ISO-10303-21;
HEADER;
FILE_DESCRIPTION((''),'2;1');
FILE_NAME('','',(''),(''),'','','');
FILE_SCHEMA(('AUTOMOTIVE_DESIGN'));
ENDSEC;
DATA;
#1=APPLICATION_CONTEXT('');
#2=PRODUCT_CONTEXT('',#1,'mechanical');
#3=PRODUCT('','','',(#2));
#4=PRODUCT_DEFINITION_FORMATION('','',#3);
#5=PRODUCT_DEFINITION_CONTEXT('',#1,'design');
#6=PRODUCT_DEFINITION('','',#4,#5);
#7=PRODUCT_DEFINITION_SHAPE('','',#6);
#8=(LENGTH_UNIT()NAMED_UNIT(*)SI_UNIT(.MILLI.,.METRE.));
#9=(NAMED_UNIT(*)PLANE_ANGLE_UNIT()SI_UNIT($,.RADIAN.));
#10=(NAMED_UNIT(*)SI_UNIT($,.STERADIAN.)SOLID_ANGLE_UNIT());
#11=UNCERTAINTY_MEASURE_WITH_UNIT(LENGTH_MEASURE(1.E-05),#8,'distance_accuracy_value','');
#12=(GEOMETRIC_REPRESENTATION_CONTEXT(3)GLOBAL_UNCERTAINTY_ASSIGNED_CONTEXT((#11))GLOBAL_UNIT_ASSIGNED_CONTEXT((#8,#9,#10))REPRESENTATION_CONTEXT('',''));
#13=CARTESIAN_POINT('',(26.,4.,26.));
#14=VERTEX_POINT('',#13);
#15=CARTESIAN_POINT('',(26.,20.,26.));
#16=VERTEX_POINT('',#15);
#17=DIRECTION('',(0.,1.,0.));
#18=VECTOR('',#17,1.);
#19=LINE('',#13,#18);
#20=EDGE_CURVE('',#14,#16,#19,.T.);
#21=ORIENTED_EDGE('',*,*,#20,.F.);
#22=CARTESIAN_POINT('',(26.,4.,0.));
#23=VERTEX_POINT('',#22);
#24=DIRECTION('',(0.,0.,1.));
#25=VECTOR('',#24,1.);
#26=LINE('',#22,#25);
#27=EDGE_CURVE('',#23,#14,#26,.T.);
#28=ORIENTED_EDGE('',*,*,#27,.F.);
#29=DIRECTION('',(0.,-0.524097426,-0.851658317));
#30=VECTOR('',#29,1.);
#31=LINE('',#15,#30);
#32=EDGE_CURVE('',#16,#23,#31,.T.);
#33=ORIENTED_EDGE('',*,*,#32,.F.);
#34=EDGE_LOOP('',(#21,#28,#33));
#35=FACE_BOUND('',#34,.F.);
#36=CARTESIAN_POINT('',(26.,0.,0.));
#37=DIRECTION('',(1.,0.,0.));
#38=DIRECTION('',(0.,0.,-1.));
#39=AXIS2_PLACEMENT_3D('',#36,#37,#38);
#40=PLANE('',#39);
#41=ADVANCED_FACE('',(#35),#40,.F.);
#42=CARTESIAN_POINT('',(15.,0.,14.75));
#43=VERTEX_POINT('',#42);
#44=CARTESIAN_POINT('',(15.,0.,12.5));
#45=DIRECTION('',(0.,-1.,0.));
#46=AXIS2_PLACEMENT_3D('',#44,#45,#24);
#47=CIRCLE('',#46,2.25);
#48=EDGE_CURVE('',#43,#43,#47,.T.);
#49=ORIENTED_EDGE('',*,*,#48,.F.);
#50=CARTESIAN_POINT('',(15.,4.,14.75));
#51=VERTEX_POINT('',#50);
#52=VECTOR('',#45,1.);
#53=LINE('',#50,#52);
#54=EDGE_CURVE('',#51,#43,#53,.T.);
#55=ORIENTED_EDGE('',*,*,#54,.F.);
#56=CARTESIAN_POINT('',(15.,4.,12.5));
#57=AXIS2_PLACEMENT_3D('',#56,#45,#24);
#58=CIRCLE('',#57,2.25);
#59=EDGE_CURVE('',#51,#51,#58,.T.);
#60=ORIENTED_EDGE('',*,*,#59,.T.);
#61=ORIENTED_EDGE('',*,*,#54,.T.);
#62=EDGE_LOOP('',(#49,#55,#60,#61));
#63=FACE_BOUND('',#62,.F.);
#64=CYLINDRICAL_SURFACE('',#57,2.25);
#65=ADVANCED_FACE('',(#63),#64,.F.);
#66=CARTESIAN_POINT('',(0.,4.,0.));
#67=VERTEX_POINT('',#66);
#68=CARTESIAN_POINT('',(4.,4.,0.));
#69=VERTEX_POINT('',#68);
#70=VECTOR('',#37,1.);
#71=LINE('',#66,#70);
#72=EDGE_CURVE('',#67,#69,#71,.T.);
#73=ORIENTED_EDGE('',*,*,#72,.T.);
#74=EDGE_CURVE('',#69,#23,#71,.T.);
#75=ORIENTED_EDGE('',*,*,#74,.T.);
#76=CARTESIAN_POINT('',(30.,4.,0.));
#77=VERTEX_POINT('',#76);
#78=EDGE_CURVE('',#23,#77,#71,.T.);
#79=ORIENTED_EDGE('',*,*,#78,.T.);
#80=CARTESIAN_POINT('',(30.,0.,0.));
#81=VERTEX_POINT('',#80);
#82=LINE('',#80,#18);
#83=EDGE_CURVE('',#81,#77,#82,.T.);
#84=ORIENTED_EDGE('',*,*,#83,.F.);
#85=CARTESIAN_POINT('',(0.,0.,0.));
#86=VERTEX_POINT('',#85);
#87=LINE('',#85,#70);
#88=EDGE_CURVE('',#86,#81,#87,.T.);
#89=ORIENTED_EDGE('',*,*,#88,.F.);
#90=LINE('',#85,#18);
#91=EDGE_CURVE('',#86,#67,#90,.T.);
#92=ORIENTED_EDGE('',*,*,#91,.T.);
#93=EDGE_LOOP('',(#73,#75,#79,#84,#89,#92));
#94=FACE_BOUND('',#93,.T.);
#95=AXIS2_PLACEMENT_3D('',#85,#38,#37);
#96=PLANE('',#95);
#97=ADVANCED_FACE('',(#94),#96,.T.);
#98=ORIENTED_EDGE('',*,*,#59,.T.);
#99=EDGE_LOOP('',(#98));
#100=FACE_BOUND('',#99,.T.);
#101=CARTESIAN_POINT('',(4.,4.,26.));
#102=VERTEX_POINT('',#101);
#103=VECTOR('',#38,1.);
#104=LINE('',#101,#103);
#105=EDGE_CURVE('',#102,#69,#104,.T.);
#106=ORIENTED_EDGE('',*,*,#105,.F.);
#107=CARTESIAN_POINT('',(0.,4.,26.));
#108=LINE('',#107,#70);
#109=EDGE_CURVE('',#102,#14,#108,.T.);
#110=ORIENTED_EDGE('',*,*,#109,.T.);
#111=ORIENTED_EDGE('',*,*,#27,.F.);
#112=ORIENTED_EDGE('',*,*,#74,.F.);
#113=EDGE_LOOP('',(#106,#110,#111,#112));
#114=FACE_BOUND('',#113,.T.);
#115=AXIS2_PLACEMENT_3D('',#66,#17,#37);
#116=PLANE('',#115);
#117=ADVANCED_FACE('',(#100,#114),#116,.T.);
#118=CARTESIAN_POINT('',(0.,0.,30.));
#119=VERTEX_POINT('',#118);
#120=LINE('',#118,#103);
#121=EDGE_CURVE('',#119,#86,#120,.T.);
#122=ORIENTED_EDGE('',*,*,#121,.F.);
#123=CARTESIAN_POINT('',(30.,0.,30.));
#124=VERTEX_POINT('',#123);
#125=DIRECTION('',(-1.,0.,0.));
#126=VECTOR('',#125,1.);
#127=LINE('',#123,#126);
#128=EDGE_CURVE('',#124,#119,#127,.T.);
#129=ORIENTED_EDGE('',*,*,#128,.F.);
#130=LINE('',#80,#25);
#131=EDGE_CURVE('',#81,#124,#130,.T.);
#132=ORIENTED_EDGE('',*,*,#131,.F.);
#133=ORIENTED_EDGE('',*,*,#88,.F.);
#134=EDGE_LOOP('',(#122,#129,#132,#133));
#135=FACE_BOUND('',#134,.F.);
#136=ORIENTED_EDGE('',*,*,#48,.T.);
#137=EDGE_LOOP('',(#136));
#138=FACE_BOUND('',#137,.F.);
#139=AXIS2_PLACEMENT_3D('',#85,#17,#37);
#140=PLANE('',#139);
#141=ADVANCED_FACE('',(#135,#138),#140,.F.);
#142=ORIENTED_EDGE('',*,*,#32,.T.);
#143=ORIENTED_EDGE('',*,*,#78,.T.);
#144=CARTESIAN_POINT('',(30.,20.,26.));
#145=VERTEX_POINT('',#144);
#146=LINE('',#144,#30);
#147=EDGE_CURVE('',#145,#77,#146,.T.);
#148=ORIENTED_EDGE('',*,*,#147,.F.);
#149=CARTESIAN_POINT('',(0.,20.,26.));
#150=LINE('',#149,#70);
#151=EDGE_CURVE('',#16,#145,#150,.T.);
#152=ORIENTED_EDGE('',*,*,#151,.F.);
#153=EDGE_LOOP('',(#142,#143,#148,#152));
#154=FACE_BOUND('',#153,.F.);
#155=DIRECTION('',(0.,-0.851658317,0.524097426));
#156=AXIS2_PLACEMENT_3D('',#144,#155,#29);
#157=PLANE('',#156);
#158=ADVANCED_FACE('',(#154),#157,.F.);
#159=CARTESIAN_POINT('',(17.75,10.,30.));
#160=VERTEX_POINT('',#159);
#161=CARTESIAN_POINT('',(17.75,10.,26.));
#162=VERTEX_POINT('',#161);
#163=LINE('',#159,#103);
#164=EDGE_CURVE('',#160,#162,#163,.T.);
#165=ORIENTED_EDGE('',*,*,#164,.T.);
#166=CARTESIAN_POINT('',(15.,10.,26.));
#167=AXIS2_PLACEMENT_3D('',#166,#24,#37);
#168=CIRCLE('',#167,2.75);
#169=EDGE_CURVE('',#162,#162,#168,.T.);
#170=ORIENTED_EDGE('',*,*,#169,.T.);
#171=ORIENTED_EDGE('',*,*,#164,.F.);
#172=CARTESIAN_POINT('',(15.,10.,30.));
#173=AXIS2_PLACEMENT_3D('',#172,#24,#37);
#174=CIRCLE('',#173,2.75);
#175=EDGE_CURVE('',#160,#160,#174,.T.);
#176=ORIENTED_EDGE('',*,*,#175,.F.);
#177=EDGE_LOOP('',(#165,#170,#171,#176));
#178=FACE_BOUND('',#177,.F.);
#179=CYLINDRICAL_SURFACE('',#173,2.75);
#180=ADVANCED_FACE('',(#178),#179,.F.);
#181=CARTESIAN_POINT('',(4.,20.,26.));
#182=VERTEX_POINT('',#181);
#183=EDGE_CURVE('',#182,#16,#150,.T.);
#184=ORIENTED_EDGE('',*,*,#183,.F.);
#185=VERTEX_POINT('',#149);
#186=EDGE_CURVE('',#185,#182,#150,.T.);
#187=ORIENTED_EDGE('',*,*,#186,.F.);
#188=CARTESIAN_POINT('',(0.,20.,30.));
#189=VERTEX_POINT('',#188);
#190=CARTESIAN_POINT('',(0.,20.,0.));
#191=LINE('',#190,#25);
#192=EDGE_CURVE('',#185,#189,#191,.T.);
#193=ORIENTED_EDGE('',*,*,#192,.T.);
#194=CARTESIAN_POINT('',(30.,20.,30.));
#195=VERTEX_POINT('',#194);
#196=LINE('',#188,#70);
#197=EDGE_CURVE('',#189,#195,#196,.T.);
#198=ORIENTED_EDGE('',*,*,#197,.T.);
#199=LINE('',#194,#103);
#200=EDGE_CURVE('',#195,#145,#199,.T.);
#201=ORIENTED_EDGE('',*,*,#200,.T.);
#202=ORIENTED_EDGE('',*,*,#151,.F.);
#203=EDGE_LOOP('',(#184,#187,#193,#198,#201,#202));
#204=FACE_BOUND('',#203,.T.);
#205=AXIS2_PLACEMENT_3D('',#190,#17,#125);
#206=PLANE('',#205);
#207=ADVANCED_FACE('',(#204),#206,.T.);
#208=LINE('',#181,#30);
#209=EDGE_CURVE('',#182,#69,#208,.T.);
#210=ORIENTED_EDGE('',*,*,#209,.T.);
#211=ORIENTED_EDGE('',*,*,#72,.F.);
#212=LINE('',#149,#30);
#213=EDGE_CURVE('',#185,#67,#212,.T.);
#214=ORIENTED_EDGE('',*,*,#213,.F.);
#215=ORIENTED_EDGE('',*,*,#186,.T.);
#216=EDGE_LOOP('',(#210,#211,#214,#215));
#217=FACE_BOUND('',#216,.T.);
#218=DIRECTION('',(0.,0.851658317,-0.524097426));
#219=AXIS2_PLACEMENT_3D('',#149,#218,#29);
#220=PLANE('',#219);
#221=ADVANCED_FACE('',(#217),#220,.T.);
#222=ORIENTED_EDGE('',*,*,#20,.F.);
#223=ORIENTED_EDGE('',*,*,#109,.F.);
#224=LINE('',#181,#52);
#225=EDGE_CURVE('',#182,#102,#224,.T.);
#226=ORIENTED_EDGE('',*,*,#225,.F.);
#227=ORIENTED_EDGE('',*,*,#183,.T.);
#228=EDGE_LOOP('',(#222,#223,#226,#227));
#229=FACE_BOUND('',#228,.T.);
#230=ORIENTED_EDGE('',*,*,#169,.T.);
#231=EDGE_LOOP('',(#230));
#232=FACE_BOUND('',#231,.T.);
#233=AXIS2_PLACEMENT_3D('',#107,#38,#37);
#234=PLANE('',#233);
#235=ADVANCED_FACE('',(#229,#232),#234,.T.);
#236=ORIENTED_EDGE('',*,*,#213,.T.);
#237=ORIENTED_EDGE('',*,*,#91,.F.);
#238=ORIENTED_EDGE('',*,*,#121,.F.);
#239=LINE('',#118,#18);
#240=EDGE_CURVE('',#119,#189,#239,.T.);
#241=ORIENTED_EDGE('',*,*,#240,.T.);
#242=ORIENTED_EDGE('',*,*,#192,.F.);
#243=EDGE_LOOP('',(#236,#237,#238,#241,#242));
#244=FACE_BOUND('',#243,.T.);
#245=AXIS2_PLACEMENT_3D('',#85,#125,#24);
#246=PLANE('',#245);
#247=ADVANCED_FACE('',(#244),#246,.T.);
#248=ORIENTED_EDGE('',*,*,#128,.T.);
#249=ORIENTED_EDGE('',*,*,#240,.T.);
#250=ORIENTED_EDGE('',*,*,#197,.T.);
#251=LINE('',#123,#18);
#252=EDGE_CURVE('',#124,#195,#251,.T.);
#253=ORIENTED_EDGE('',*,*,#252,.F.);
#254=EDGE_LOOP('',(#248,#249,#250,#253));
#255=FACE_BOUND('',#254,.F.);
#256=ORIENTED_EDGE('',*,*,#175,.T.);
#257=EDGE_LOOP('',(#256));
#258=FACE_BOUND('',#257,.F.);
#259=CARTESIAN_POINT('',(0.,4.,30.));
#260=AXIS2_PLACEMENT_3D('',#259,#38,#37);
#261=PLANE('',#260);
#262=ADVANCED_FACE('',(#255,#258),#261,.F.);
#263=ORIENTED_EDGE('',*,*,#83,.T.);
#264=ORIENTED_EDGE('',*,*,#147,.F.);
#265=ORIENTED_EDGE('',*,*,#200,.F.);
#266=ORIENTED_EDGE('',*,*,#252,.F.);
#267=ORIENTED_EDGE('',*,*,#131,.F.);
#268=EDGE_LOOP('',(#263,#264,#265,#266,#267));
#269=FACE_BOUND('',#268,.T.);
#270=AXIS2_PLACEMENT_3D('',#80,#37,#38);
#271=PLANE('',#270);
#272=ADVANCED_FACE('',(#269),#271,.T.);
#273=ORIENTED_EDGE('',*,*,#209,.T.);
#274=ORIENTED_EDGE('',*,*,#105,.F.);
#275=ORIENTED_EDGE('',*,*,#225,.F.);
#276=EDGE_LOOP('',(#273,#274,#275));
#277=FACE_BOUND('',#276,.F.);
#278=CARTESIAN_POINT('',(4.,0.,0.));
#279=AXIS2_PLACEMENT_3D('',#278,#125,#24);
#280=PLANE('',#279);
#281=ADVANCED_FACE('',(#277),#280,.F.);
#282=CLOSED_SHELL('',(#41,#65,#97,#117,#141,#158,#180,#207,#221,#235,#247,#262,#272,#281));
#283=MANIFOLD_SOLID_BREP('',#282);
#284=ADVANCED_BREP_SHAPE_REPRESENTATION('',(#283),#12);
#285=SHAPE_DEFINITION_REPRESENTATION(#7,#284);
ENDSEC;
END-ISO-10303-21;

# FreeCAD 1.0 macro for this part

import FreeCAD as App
import Part
import Sketcher

V = App.Vector


def add_polygon(sketch, points):
    """Adds a closed chain of lines whose ends are joined by coincident constraints."""
    first, n = sketch.GeometryCount, len(points)
    for a, b in zip(points, points[1:] + points[:1]):
        sketch.addGeometry(Part.LineSegment(App.Vector(*a, 0), App.Vector(*b, 0)), False)
    for i in range(n):
        sketch.addConstraint(Sketcher.Constraint("Coincident", first + i, 2, first + (i + 1) % n, 1))

doc = App.newDocument("Part")
body = doc.addObject("PartDesign::Body", "Body")

# Sketch on XZ plane
sketch1 = body.newObject("Sketcher::SketchObject", "Sketch")
sketch1.AttachmentSupport = (doc.getObject("XZ_Plane"), [""])
sketch1.MapMode = "FlatFace"
add_polygon(sketch1, [(30, 0), (0, 0), (0, 30), (30, 30)])  # lines 0-3
sketch1.addConstraint([
    Sketcher.Constraint("Horizontal", 0),
    Sketcher.Constraint("Vertical", 1),
    Sketcher.Constraint("Horizontal", 2),
    Sketcher.Constraint("Vertical", 3),
    Sketcher.Constraint("Coincident", 0, 2, -1, 1),
    Sketcher.Constraint("Equal", 2, 1),
    Sketcher.Constraint("DistanceX", 0, 2, 0, 1, 30.0),
])
pad1 = body.newObject("PartDesign::Pad", "Pad")
pad1.Profile = sketch1
pad1.Length = 4
pad1.Reversed = True

# Sketch on XZ plane
sketch2 = body.newObject("Sketcher::SketchObject", "Sketch001")
sketch2.AttachmentSupport = (doc.getObject("XZ_Plane"), [""])
sketch2.MapMode = "FlatFace"
sketch2.AttachmentOffset = App.Placement(V(0, 0, -4), App.Rotation())
sketch2.addGeometry(Part.Circle(V(15, 12.5, 0), V(0, 0, 1), 2.2), False)
sketch2.addConstraint([
    Sketcher.Constraint("Diameter", 0, 4.5),
    Sketcher.Constraint("DistanceX", -1, 1, 0, 3, 15.0),
    Sketcher.Constraint("DistanceY", -1, 1, 0, 3, 12.5),
])
doc.recompute()
hole = body.newObject("PartDesign::Hole", "Hole")
hole.Profile = sketch2
hole.ThreadType = "None"
hole.Diameter = 4.5
hole.DepthType = "ThroughAll"
hole.Reversed = True

# Sketch on XZ plane
sketch3 = body.newObject("Sketcher::SketchObject", "Sketch002")
sketch3.AttachmentSupport = (doc.getObject("XZ_Plane"), [""])
sketch3.MapMode = "FlatFace"
sketch3.AttachmentOffset = App.Placement(V(0, 0, -4), App.Rotation())
add_polygon(sketch3, [(0, 26), (0, 30), (30, 30), (30, 26)])  # lines 0-3
sketch3.addConstraint([
    Sketcher.Constraint("Vertical", 0),
    Sketcher.Constraint("Horizontal", 1),
    Sketcher.Constraint("Vertical", 2),
    Sketcher.Constraint("Horizontal", 3),
    Sketcher.Constraint("PointOnObject", 0, 2, -2),
    Sketcher.Constraint("DistanceY", 0, 1, 0, 2, 4.0),
    Sketcher.Constraint("DistanceX", 1, 1, 1, 2, 30.0),
    Sketcher.Constraint("DistanceY", -1, 1, 0, 2, 30.0),
])
pad2 = body.newObject("PartDesign::Pad", "Pad001")
pad2.Profile = sketch3
pad2.Length = 16
pad2.Reversed = True

# Sketch on XY plane
sketch4 = body.newObject("Sketcher::SketchObject", "Sketch003")
sketch4.AttachmentSupport = (doc.getObject("XY_Plane"), [""])
sketch4.MapMode = "FlatFace"
sketch4.AttachmentOffset = App.Placement(V(0, 0, 30), App.Rotation())
sketch4.addGeometry(Part.Circle(V(15, 10, 0), V(0, 0, 1), 2.8), False)
sketch4.addConstraint([
    Sketcher.Constraint("Diameter", 0, 5.5),
    Sketcher.Constraint("DistanceY", -1, 1, 0, 3, 10.0),
    Sketcher.Constraint("DistanceX", -1, 1, 0, 3, 15.0),
])
pocket1 = body.newObject("PartDesign::Pocket", "Pocket")
pocket1.Profile = sketch4
pocket1.Type = "ThroughAll"

# Sketch on YZ plane
sketch5 = body.newObject("Sketcher::SketchObject", "Sketch004")
sketch5.AttachmentSupport = (doc.getObject("YZ_Plane"), [""])
sketch5.MapMode = "FlatFace"
add_polygon(sketch5, [(20, 26), (4, 0), (4, 26)])  # lines 0-2
sketch5.addConstraint([
    Sketcher.Constraint("Vertical", 1),
    Sketcher.Constraint("Horizontal", 2),
    Sketcher.Constraint("PointOnObject", 0, 2, -1),
    Sketcher.Constraint("DistanceX", 2, 1, 2, 2, 16.0),
    Sketcher.Constraint("DistanceY", 1, 1, 1, 2, 26.0),
    Sketcher.Constraint("DistanceX", -1, 1, 0, 2, 4.0),
])
pad3 = body.newObject("PartDesign::Pad", "Pad002")
pad3.Profile = sketch5
pad3.Length = 4

# Sketch on YZ plane
sketch6 = body.newObject("Sketcher::SketchObject", "Sketch005")
sketch6.AttachmentSupport = (doc.getObject("YZ_Plane"), [""])
sketch6.MapMode = "FlatFace"
sketch6.AttachmentOffset = App.Placement(V(0, 0, 30), App.Rotation())
add_polygon(sketch6, [(4, 26), (4, 0), (20, 26)])  # lines 0-2
sketch6.addConstraint([
    Sketcher.Constraint("Vertical", 0),
    Sketcher.Constraint("Horizontal", 2),
    Sketcher.Constraint("PointOnObject", 0, 2, -1),
    Sketcher.Constraint("DistanceX", 2, 2, 2, 1, 16.0),
    Sketcher.Constraint("DistanceY", 0, 2, 0, 1, 26.0),
    Sketcher.Constraint("DistanceX", -1, 1, 0, 2, 4.0),
])
pad4 = body.newObject("PartDesign::Pad", "Pad003")
pad4.Profile = sketch6
pad4.Length = 4
pad4.Reversed = True

doc.recompute()
